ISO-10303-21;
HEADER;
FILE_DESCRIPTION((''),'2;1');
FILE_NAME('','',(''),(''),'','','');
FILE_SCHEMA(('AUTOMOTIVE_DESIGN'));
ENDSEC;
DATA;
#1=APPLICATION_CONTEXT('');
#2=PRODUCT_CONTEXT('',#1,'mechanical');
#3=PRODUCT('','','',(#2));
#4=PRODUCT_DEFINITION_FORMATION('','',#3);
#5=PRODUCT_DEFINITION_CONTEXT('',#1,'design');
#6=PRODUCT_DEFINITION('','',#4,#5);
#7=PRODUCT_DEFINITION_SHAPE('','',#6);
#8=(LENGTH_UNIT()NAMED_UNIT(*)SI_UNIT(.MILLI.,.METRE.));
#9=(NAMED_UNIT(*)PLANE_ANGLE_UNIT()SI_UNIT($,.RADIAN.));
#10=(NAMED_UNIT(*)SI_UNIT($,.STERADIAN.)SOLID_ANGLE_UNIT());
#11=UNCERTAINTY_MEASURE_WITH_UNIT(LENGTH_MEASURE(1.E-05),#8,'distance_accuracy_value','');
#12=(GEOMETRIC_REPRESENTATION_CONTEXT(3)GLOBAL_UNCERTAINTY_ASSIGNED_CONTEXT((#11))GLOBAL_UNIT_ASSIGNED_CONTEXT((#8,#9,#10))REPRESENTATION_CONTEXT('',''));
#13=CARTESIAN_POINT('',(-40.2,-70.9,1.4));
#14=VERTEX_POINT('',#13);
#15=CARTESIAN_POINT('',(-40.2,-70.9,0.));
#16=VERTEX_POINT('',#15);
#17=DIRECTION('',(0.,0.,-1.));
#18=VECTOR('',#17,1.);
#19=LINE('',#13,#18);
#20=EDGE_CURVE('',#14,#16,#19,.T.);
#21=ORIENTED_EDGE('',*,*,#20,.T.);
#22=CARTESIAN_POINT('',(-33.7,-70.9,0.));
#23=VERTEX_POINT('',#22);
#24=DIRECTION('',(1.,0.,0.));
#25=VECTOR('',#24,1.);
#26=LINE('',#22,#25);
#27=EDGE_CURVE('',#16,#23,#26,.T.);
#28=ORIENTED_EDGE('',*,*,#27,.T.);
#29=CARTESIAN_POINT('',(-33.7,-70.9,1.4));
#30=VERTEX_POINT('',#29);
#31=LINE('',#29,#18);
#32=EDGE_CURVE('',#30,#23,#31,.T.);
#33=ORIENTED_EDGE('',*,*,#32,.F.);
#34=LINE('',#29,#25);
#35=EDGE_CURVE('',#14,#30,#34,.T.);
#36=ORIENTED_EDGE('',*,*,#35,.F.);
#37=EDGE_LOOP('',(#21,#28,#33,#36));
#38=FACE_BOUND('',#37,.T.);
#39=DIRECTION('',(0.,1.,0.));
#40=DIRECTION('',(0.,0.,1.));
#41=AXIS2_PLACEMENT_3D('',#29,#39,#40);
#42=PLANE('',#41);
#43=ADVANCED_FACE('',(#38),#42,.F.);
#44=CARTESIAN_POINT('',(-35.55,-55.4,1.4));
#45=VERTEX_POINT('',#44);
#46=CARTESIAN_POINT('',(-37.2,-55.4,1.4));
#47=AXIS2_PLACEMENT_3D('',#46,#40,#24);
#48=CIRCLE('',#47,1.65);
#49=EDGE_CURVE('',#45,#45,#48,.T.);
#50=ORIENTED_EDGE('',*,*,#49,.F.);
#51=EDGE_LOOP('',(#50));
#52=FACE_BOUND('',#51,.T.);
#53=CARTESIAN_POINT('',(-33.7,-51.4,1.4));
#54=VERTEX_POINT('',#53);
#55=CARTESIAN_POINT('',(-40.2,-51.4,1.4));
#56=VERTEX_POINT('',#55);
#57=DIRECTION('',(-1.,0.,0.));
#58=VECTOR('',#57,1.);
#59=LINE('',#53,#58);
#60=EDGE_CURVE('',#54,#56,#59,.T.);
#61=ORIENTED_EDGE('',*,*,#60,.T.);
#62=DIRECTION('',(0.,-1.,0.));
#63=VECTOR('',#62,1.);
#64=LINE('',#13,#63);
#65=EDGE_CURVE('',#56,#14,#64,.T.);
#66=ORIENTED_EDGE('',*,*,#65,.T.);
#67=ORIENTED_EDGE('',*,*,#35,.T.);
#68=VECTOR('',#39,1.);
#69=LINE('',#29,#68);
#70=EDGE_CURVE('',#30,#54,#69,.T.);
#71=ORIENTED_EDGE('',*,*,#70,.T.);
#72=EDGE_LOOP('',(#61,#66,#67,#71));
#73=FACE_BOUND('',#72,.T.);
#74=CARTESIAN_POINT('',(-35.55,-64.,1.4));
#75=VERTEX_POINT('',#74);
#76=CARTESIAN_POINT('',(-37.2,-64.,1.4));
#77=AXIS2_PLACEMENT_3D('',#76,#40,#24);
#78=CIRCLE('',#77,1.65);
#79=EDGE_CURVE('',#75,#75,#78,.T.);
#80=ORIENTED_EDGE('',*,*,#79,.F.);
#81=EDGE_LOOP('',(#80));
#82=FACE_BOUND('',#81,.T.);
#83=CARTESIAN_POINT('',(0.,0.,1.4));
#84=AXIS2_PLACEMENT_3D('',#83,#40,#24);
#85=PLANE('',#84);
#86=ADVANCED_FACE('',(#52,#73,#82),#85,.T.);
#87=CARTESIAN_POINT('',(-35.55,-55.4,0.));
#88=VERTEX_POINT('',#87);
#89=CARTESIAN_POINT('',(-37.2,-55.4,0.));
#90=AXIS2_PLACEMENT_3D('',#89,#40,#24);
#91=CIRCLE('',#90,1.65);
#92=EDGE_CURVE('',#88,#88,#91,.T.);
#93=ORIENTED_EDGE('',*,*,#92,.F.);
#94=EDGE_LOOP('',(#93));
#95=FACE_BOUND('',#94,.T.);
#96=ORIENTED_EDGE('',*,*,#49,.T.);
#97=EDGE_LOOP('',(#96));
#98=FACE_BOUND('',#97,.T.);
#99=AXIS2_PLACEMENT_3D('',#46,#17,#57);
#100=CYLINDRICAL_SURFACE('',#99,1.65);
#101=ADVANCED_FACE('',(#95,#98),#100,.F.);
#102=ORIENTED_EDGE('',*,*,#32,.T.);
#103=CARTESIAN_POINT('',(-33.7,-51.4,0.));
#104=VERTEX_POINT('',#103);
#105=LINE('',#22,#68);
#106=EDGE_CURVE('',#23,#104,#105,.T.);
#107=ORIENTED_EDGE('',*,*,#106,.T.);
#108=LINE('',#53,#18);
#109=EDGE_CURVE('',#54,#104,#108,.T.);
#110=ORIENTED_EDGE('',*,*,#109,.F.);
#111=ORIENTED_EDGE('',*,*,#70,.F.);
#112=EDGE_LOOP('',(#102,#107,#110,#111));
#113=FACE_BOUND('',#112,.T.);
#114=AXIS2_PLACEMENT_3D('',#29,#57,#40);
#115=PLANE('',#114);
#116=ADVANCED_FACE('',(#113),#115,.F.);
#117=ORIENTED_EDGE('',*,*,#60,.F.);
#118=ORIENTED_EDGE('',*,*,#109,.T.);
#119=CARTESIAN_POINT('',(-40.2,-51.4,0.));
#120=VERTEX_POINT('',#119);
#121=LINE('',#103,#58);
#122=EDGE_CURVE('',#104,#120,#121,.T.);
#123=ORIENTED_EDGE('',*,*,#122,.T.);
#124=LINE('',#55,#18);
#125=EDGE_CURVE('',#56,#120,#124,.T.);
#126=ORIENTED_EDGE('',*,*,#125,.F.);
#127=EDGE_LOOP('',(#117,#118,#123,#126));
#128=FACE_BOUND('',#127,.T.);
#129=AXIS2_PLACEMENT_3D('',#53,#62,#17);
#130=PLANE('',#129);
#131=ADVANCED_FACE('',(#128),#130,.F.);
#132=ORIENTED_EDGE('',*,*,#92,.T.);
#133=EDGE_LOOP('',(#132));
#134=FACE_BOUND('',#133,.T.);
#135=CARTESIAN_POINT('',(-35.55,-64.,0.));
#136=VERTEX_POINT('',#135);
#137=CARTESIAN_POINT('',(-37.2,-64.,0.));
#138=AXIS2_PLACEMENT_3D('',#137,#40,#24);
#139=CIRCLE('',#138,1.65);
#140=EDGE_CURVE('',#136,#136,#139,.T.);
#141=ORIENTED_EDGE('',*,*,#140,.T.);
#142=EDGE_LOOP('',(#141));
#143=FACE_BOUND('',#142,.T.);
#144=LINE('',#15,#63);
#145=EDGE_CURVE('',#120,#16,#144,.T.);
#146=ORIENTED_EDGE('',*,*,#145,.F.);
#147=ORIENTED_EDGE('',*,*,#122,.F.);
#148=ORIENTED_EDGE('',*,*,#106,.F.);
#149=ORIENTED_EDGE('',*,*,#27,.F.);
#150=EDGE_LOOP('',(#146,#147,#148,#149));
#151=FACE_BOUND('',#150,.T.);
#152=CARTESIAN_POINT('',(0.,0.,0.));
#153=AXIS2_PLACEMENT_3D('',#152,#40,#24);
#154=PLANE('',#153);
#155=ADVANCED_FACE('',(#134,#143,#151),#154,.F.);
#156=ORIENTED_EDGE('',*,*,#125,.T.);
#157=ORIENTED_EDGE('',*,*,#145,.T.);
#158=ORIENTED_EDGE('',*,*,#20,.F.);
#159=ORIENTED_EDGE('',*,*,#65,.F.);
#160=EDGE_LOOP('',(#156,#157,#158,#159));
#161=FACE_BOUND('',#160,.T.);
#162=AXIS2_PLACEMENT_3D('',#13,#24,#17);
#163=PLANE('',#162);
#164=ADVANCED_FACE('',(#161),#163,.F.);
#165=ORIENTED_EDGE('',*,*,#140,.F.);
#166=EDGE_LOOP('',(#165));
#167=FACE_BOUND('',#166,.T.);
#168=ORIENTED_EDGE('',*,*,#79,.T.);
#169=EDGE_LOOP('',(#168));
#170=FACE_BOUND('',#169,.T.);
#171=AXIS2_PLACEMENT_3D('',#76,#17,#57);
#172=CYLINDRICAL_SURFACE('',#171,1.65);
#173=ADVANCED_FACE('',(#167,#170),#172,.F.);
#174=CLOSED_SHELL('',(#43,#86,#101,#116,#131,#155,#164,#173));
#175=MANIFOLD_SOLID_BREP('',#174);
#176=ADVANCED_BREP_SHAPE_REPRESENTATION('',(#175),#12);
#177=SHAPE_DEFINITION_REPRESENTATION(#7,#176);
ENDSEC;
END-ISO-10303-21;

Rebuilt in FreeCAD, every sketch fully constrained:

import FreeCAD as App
import Part
import Sketcher

doc = App.newDocument("Part")
body = doc.addObject("PartDesign::Body", "Body")

sketch1 = doc.addObject("Sketcher::SketchObject", "Sketch")
body.addObject(sketch1)
sketch1.AttachmentSupport = (doc.XY_Plane, [""])
sketch1.MapMode = "FlatFace"
sketch1.addGeometry(Part.LineSegment(App.Vector(-40.2, -51.4, 0), App.Vector(-40.2, -70.9, 0)), False)
sketch1.addGeometry(Part.LineSegment(App.Vector(-40.2, -70.9, 0), App.Vector(-33.7, -70.9, 0)), False)
sketch1.addGeometry(Part.LineSegment(App.Vector(-33.7, -70.9, 0), App.Vector(-33.7, -51.4, 0)), False)
sketch1.addGeometry(Part.LineSegment(App.Vector(-33.7, -51.4, 0), App.Vector(-40.2, -51.4, 0)), False)
sketch1.addGeometry(Part.Circle(App.Vector(-37.2, -64, 0), App.Vector(0, 0, 1), 1.6), False)
sketch1.addGeometry(Part.Circle(App.Vector(-37.2, -55.4, 0), App.Vector(0, 0, 1), 1.6), False)
sketch1.addConstraint(Sketcher.Constraint("Coincident", 0, 2, 1, 1))
sketch1.addConstraint(Sketcher.Constraint("Coincident", 1, 2, 2, 1))
sketch1.addConstraint(Sketcher.Constraint("Coincident", 2, 2, 3, 1))
sketch1.addConstraint(Sketcher.Constraint("Coincident", 3, 2, 0, 1))
sketch1.addConstraint(Sketcher.Constraint("Vertical", 0))
sketch1.addConstraint(Sketcher.Constraint("Horizontal", 1))
sketch1.addConstraint(Sketcher.Constraint("Vertical", 2))
sketch1.addConstraint(Sketcher.Constraint("Horizontal", 3))
sketch1.addConstraint(Sketcher.Constraint("Equal", 4, 5))
sketch1.addConstraint(Sketcher.Constraint("Vertical", 4, 3, 5, 3))
sketch1.addConstraint(Sketcher.Constraint("Diameter", 4, 3.3))
sketch1.addConstraint(Sketcher.Constraint("DistanceX", 1, 1, 1, 2, 6.5))
sketch1.addConstraint(Sketcher.Constraint("DistanceY", 0, 2, 0, 1, 19.5))
sketch1.addConstraint(Sketcher.Constraint("DistanceY", 4, 3, -1, 1, 64.0))
sketch1.addConstraint(Sketcher.Constraint("DistanceX", 0, 2, 4, 3, 3.0))
sketch1.addConstraint(Sketcher.Constraint("DistanceY", 5, 3, 2, 2, 4.0))
sketch1.addConstraint(Sketcher.Constraint("DistanceX", 4, 3, -1, 1, 37.2))
sketch1.addConstraint(Sketcher.Constraint("DistanceY", 5, 3, -1, 1, 55.4))
pad1 = doc.addObject("PartDesign::Pad", "Pad")
body.addObject(pad1)
pad1.Profile = sketch1
pad1.Length = 1.4

doc.recompute()
